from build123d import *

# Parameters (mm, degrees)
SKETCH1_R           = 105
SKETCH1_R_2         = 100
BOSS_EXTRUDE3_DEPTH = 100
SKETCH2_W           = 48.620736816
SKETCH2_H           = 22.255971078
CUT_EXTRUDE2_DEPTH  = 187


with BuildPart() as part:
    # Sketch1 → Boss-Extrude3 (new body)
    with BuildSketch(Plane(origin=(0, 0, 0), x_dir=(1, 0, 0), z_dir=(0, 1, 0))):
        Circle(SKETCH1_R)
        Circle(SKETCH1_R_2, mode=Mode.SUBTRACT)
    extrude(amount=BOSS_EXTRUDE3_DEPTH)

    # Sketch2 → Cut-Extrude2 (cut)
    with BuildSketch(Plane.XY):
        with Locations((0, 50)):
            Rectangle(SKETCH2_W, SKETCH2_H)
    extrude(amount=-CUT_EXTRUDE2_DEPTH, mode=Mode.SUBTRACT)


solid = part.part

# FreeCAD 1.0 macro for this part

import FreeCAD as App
import Part
import Sketcher
from FreeCAD import Vector

doc = App.newDocument("Part")
body = doc.addObject("PartDesign::Body", "Body")

# Sketch on XZ plane
sketch1 = body.newObject("Sketcher::SketchObject", "Sketch")
sketch1.AttachmentSupport = (doc.getObject("XZ_Plane"), [""])
sketch1.MapMode = "FlatFace"
sketch1.addGeometry([
    Part.Circle(Vector(0, 0, 0), Vector(0, 0, 1), 105),
    Part.Circle(Vector(0, 0, 0), Vector(0, 0, 1), 100),
], False)
sketch1.addConstraint([
    Sketcher.Constraint("Coincident", 0, 3, -1, 1),
    Sketcher.Constraint("Coincident", 1, 3, -1, 1),
    Sketcher.Constraint("Diameter", 0, 210.0),
    Sketcher.Constraint("Diameter", 1, 200.0),
])
pad1 = body.newObject("PartDesign::Pad", "Pad")
pad1.Profile = sketch1
pad1.Length = 100
pad1.Reversed = True

# Sketch on XY plane
sketch2 = body.newObject("Sketcher::SketchObject", "Sketch001")
sketch2.AttachmentSupport = (doc.getObject("XY_Plane"), [""])
sketch2.MapMode = "FlatFace"
sketch2.addGeometry([
    Part.LineSegment(Vector(-24, 61, 0), Vector(-24, 39, 0)),
    Part.LineSegment(Vector(-24, 39, 0), Vector(24, 39, 0)),
    Part.LineSegment(Vector(24, 39, 0), Vector(24, 61, 0)),
    Part.LineSegment(Vector(24, 61, 0), Vector(-24, 61, 0)),
], False)
sketch2.addConstraint([
    Sketcher.Constraint("Coincident", 0, 2, 1, 1),
    Sketcher.Constraint("Coincident", 1, 2, 2, 1),
    Sketcher.Constraint("Coincident", 2, 2, 3, 1),
    Sketcher.Constraint("Coincident", 3, 2, 0, 1),
    Sketcher.Constraint("Vertical", 0),
    Sketcher.Constraint("Horizontal", 1),
    Sketcher.Constraint("Vertical", 2),
    Sketcher.Constraint("Horizontal", 3),
    Sketcher.Constraint("DistanceY", 0, 2, 0, 1, 22.255971),
    Sketcher.Constraint("DistanceX", 1, 1, 1, 2, 48.620737),
    Sketcher.Constraint("DistanceX", 0, 2, -1, 1, 24.310368),
    Sketcher.Constraint("DistanceY", -1, 1, 0, 2, 38.872014),
])
pocket1 = body.newObject("PartDesign::Pocket", "Pocket")
pocket1.Profile = sketch2
pocket1.Length = 187

doc.recompute()
